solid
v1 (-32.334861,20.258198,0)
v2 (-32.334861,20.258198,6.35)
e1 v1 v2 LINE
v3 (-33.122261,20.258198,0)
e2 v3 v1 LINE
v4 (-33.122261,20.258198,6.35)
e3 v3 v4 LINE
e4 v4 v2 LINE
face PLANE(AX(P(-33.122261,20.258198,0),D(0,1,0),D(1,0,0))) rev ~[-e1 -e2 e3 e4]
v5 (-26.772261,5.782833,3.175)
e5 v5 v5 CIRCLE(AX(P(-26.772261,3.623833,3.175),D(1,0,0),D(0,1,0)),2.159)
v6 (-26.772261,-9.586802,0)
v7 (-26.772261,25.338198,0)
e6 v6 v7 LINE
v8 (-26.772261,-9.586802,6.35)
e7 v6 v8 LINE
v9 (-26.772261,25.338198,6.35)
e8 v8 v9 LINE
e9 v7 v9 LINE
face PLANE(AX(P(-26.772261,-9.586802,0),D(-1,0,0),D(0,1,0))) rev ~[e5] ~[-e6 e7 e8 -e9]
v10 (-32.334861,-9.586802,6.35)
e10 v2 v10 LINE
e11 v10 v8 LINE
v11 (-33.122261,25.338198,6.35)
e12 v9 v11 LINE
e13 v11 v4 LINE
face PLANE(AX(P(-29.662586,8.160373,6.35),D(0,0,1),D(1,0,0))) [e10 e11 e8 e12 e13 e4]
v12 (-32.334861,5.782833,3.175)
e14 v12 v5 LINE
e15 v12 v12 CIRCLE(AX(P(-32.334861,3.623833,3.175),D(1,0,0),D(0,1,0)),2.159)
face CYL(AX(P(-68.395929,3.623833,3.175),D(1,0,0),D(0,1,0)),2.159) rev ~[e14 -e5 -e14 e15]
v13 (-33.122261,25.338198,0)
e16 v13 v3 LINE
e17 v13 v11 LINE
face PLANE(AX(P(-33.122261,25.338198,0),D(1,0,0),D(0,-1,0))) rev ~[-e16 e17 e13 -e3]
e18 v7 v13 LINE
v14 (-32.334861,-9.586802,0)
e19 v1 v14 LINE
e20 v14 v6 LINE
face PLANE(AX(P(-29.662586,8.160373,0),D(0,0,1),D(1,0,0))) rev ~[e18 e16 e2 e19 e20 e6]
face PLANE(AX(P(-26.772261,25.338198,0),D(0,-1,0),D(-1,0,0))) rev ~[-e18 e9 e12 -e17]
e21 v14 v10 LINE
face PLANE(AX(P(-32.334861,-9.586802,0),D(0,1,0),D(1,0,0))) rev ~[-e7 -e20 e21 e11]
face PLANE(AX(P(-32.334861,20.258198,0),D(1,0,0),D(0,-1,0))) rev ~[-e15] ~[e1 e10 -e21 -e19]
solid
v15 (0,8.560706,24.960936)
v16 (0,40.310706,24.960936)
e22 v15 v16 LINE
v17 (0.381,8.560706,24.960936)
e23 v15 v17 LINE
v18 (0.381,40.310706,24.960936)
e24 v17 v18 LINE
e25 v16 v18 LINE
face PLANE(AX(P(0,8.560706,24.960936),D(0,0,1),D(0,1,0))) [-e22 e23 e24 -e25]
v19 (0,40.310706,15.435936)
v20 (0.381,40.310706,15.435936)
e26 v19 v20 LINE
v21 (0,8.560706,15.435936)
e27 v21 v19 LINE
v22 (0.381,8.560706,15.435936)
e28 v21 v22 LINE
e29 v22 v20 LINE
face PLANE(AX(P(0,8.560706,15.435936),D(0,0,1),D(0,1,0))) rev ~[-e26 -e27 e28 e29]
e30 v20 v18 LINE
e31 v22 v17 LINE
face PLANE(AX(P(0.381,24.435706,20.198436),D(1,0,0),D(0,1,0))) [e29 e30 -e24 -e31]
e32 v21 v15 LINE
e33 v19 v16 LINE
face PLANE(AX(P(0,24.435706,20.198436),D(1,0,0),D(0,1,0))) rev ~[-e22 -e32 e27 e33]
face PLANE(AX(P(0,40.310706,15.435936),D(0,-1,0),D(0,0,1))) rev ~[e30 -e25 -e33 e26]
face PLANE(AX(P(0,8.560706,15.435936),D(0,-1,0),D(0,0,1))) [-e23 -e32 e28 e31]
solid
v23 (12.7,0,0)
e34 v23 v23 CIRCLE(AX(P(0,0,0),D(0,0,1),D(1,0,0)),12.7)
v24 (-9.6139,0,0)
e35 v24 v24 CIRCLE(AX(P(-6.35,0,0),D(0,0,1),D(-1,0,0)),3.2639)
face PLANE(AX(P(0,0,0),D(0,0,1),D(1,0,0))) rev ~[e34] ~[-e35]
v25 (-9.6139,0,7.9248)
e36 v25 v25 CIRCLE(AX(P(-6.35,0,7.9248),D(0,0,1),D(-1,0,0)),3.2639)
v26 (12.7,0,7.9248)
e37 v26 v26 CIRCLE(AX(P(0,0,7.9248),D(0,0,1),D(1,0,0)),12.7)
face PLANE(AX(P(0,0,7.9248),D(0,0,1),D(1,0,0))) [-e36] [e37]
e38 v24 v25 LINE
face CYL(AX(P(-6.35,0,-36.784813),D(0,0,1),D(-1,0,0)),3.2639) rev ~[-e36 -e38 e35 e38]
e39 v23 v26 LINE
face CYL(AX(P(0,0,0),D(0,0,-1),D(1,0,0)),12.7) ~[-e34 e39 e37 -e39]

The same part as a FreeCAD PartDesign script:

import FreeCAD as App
import Part
import Sketcher
from FreeCAD import Vector
Q = App.Units.Quantity

doc = App.newDocument("Part")
body = doc.addObject("PartDesign::Body", "Body")

# Sketch on XY plane
sketch1 = doc.addObject("Sketcher::SketchObject", "Sketch")
body.addObject(sketch1)
sketch1.AttachmentSupport = (doc.XY_Plane, [""])
sketch1.MapMode = "FlatFace"
sketch1.addGeometry(Part.Circle(Vector(0, 0, 0), Vector(0, 0, 1), 12.7), False)
sketch1.addConstraint([
    Sketcher.Constraint("Coincident", 0, 3, -1, 1),
    Sketcher.Constraint("Diameter", 0, Q("1 in")),
])
pad1 = doc.addObject("PartDesign::Pad", "Pad")
body.addObject(pad1)
pad1.Profile = sketch1
pad1.Length = Q("0.312 in")

# Sketch on XY plane
sketch2 = doc.addObject("Sketcher::SketchObject", "Sketch001")
body.addObject(sketch2)
sketch2.AttachmentSupport = (doc.XY_Plane, [""])
sketch2.MapMode = "FlatFace"
sketch2.addGeometry(Part.Circle(Vector(-6.35, 0, 0), Vector(0, 0, 1), 3.2639), False)
sketch2.addConstraint([
    Sketcher.Constraint("PointOnObject", 0, 3, -1),
    Sketcher.Constraint("Diameter", 0, Q("0.257 in")),
    Sketcher.Constraint("DistanceX", 0, 3, -1, 1, Q("0.25 in")),
])
doc.recompute()
hole = doc.addObject("PartDesign::Hole", "Hole")
body.addObject(hole)
hole.Profile = sketch2
hole.ThreadType = "None"
hole.Diameter = Q("0.257 in")
hole.DepthType = "ThroughAll"
hole.Reversed = True
body2 = doc.addObject("PartDesign::Body", "Body001")

# Sketch on XY plane
sketch3 = doc.addObject("Sketcher::SketchObject", "Sketch002")
body2.addObject(sketch3)
sketch3.AttachmentSupport = (doc.getObject("XY_Plane001"), [""])
sketch3.MapMode = "FlatFace"
sketch3.addGeometry([
    Part.LineSegment(Vector(-26.772261, 25.338198, 0), Vector(-33.122261, 25.338198, 0)),  # 0
    Part.LineSegment(Vector(-33.122261, 25.338198, 0), Vector(-33.122261, 20.258198, 0)),  # 1
    Part.LineSegment(Vector(-33.122261, 20.258198, 0), Vector(-32.334861, 20.258198, 0)),  # 2
    Part.LineSegment(Vector(-32.334861, 20.258198, 0), Vector(-32.334861, -9.586802, 0)),  # 3
    Part.LineSegment(Vector(-32.334861, -9.586802, 0), Vector(-26.772261, -9.586802, 0)),  # 4
    Part.LineSegment(Vector(-26.772261, -9.586802, 0), Vector(-26.772261, 25.338198, 0)),  # 5
], False)
sketch3.addConstraint([
    Sketcher.Constraint("Coincident", 0, 2, 1, 1),
    Sketcher.Constraint("Coincident", 1, 2, 2, 1),
    Sketcher.Constraint("Coincident", 2, 2, 3, 1),
    Sketcher.Constraint("Coincident", 3, 2, 4, 1),
    Sketcher.Constraint("Coincident", 4, 2, 5, 1),
    Sketcher.Constraint("Coincident", 5, 2, 0, 1),
    Sketcher.Constraint("Horizontal", 0),
    Sketcher.Constraint("Vertical", 1),
    Sketcher.Constraint("Horizontal", 2),
    Sketcher.Constraint("Vertical", 3),
    Sketcher.Constraint("Horizontal", 4),
    Sketcher.Constraint("Vertical", 5),
    Sketcher.Constraint("DistanceY", 1, 2, 1, 1, Q("0.2 in")),
    Sketcher.Constraint("DistanceX", 0, 2, 0, 1, Q("0.25 in")),
    Sketcher.Constraint("DistanceX", 2, 1, 2, 2, Q("0.031 in")),
    Sketcher.Constraint("DistanceY", 3, 2, 3, 1, Q("1.175 in")),
    Sketcher.Constraint("DistanceX", 0, 2, -1, 1, Q("33.122261 mm")),
    Sketcher.Constraint("DistanceY", -1, 1, 0, 2, Q("25.338198 mm")),
])
pad2 = doc.addObject("PartDesign::Pad", "Pad001")
body2.addObject(pad2)
pad2.Profile = sketch3
pad2.Length = Q("0.25 in")

# Sketch on YZ plane
sketch4 = doc.addObject("Sketcher::SketchObject", "Sketch003")
body2.addObject(sketch4)
sketch4.AttachmentSupport = (doc.getObject("YZ_Plane001"), [""])
sketch4.MapMode = "FlatFace"
sketch4.AttachmentOffset = App.Placement(Vector(0, 0, -32.334861), App.Rotation())
sketch4.addGeometry(Part.Circle(Vector(3.623833, 3.175, 0), Vector(0, 0, 1), 2.159), False)
sketch4.addConstraint([
    Sketcher.Constraint("Diameter", 0, Q("0.17 in")),
    Sketcher.Constraint("DistanceY", -1, 1, 0, 3, Q("0.125 in")),
    Sketcher.Constraint("DistanceX", -1, 1, 0, 3, Q("3.623833 mm")),
])
doc.recompute()
hole2 = doc.addObject("PartDesign::Hole", "Hole001")
body2.addObject(hole2)
hole2.Profile = sketch4
hole2.ThreadType = "None"
hole2.Diameter = Q("0.17 in")
hole2.DepthType = "ThroughAll"
hole2.Reversed = True
body3 = doc.addObject("PartDesign::Body", "Body002")

# Sketch on YZ plane
sketch5 = doc.addObject("Sketcher::SketchObject", "Sketch004")
body3.addObject(sketch5)
sketch5.AttachmentSupport = (doc.getObject("YZ_Plane002"), [""])
sketch5.MapMode = "FlatFace"
sketch5.addGeometry([
    Part.LineSegment(Vector(8.560706, 24.960936, 0), Vector(8.560706, 15.435936, 0)),
    Part.LineSegment(Vector(8.560706, 15.435936, 0), Vector(40.310706, 15.435936, 0)),
    Part.LineSegment(Vector(40.310706, 15.435936, 0), Vector(40.310706, 24.960936, 0)),
    Part.LineSegment(Vector(40.310706, 24.960936, 0), Vector(8.560706, 24.960936, 0)),
], False)
sketch5.addConstraint([
    Sketcher.Constraint("Coincident", 0, 2, 1, 1),
    Sketcher.Constraint("Coincident", 1, 2, 2, 1),
    Sketcher.Constraint("Coincident", 2, 2, 3, 1),
    Sketcher.Constraint("Coincident", 3, 2, 0, 1),
    Sketcher.Constraint("Vertical", 0),
    Sketcher.Constraint("Horizontal", 1),
    Sketcher.Constraint("Vertical", 2),
    Sketcher.Constraint("Horizontal", 3),
    Sketcher.Constraint("DistanceX", 1, 1, 1, 2, Q("1.25 in")),
    Sketcher.Constraint("DistanceY", 0, 2, 0, 1, Q("0.375 in")),
    Sketcher.Constraint("DistanceX", -1, 1, 0, 2, Q("8.560706 mm")),
    Sketcher.Constraint("DistanceY", -1, 1, 0, 2, Q("15.435936 mm")),
])
pad3 = doc.addObject("PartDesign::Pad", "Pad002")
body3.addObject(pad3)
pad3.Profile = sketch5
pad3.Length = Q("0.015 in")

doc.recompute()
